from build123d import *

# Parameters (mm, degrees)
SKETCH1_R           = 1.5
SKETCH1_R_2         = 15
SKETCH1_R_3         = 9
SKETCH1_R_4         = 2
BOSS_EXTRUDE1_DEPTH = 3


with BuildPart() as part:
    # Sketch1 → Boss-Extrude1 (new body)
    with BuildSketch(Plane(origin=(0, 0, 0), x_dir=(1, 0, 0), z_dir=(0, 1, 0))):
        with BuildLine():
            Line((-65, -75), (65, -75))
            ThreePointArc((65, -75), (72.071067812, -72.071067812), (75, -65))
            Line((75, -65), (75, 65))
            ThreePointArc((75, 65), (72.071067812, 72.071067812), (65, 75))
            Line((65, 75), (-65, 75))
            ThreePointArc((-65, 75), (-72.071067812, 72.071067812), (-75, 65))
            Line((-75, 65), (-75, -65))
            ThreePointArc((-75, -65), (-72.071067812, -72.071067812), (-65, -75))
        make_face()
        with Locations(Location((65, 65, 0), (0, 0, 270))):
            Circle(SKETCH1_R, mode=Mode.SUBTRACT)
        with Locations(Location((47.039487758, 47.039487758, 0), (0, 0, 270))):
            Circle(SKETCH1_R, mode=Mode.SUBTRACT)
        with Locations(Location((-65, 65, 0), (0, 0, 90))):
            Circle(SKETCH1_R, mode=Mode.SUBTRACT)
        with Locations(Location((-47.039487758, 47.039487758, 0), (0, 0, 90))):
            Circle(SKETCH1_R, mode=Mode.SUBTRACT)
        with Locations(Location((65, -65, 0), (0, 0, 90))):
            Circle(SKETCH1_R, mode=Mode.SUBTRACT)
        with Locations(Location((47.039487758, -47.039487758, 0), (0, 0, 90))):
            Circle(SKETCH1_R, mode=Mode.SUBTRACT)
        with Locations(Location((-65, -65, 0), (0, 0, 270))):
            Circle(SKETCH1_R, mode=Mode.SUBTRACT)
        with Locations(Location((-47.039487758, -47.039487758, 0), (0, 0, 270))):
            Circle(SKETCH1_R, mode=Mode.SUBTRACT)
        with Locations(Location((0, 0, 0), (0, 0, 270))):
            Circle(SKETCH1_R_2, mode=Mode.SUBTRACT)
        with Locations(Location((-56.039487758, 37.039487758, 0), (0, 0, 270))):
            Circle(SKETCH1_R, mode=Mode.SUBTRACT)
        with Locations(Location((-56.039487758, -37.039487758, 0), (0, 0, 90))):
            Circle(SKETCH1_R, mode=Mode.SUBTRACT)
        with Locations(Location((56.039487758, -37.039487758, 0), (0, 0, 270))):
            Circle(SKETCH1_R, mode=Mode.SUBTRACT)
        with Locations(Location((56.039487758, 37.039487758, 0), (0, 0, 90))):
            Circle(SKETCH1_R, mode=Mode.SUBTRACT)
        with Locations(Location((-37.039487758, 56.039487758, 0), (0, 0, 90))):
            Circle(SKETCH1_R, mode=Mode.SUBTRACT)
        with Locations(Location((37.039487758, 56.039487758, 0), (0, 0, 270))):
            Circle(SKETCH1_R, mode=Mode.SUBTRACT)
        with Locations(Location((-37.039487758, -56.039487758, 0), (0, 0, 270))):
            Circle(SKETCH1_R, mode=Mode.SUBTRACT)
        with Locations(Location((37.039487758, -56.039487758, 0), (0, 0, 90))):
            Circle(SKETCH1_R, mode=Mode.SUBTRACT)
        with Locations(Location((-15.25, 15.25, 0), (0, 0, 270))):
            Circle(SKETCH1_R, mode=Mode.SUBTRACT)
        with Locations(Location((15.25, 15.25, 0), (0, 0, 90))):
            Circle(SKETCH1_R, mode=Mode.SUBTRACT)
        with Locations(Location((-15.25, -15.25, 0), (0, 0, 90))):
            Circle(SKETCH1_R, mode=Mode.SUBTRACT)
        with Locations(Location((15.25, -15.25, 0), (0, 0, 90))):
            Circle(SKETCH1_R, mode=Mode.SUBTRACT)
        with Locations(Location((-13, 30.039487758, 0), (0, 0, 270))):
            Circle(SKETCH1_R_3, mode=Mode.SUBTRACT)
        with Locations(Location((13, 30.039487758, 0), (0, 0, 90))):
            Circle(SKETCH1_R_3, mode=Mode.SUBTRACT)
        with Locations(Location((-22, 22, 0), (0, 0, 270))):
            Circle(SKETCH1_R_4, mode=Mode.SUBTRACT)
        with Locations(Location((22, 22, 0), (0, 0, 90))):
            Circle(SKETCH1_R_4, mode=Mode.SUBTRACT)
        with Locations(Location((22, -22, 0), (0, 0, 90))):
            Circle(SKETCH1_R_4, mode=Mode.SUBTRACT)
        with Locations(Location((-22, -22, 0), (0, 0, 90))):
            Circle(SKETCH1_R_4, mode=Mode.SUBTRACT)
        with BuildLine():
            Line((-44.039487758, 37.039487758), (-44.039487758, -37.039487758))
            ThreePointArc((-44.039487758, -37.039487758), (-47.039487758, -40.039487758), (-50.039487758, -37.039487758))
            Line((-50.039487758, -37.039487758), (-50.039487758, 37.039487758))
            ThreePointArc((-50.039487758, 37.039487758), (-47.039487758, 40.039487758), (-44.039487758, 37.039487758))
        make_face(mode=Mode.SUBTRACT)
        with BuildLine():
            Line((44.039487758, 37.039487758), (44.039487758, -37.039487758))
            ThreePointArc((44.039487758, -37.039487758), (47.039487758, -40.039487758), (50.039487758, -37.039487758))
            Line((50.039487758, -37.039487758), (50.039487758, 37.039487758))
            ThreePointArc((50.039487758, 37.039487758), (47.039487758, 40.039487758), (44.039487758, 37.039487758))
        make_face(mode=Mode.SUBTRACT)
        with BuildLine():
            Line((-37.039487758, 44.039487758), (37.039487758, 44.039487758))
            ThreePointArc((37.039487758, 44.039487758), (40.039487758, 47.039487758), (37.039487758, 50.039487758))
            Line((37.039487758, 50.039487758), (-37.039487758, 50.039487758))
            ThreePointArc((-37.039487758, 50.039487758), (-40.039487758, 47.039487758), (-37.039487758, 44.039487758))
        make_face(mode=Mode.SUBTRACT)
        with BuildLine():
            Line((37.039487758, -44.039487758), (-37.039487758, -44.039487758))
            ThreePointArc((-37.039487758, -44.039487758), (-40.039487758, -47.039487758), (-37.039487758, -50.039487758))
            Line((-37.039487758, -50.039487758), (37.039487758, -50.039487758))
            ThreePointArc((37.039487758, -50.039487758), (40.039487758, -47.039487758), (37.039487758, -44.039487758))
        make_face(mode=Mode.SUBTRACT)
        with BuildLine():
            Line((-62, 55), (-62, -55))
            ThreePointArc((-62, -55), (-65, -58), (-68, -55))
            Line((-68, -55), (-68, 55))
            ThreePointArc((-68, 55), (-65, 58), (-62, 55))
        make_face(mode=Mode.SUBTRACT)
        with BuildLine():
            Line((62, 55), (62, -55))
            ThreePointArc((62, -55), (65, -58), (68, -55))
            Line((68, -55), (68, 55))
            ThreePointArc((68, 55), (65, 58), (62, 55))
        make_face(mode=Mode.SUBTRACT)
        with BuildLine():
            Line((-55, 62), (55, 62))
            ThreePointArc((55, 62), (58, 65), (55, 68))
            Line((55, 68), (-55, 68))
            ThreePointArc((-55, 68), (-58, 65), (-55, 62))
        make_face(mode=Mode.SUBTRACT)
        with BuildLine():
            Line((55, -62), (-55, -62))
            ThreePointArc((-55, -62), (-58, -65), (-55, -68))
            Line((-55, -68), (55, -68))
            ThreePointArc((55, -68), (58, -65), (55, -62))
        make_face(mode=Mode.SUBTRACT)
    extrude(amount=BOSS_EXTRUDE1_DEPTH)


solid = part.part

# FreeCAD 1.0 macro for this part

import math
import FreeCAD as App
import Part
import Sketcher

V = App.Vector

doc = App.newDocument("Part")
params = doc.addObject("Spreadsheet::Sheet", "Params")
for row, (alias, value) in enumerate([
    ("sketch1_diameter", "3 mm"),
    ("sketch1_diameter2", "4 mm"),
    ("sketch1_diameter3", "18 mm"),
    ("sketch1_diameter4", "30 mm"),
    ("sketch1_radius", "10 mm"),
    ("pad1_length", "3 mm"),
], start=1):
    params.set(f"A{row}", alias)
    params.set(f"B{row}", "=" + value)
    params.setAlias(f"B{row}", alias)

body = doc.addObject("PartDesign::Body", "Body")

# Sketch on XZ plane
sketch1 = body.newObject("Sketcher::SketchObject", "Sketch")
sketch1.AttachmentSupport = (doc.getObject("XZ_Plane"), [""])
sketch1.MapMode = "FlatFace"
sketch1.addGeometry([
    Part.LineSegment(V(-65, 75, 0), V(65, 75, 0)),  # 0
    Part.ArcOfCircle(Part.Circle(V(65, 65, 0), V(0, 0, 1), 10), math.radians(0), math.radians(90)),  # 1
    Part.LineSegment(V(75, 65, 0), V(75, -65, 0)),  # 2
    Part.ArcOfCircle(Part.Circle(V(65, -65, 0), V(0, 0, 1), 10), math.radians(-90), math.radians(0)),  # 3
    Part.LineSegment(V(65, -75, 0), V(-65, -75, 0)),  # 4
    Part.ArcOfCircle(Part.Circle(V(-65, -65, 0), V(0, 0, 1), 10), math.radians(180), math.radians(270)),  # 5
    Part.LineSegment(V(-75, -65, 0), V(-75, 65, 0)),  # 6
    Part.ArcOfCircle(Part.Circle(V(-65, 65, 0), V(0, 0, 1), 10), math.radians(90), math.radians(180)),  # 7
    Part.Circle(V(-65, 65, 0), V(0, 0, 1), 1.5),  # 8
    Part.Circle(V(-37, 56, 0), V(0, 0, 1), 1.5),  # 9
    Part.Circle(V(-56, 37, 0), V(0, 0, 1), 1.5),  # 10
    Part.Circle(V(-47, 47, 0), V(0, 0, 1), 1.5),  # 11
    Part.Circle(V(-22, 22, 0), V(0, 0, 1), 2),  # 12
    Part.Circle(V(-15.2, 15.2, 0), V(0, 0, 1), 1.5),  # 13
    Part.LineSegment(V(-55, 62, 0), V(55, 62, 0)),  # 14
    Part.ArcOfCircle(Part.Circle(V(55, 65, 0), V(0, 0, 1), 3), math.radians(-90), math.radians(90)),  # 15
    Part.LineSegment(V(55, 68, 0), V(-55, 68, 0)),  # 16
    Part.ArcOfCircle(Part.Circle(V(-55, 65, 0), V(0, 0, 1), 3), math.radians(90), math.radians(270)),  # 17
    Part.LineSegment(V(-37, 44, 0), V(37, 44, 0)),  # 18
    Part.ArcOfCircle(Part.Circle(V(37, 47, 0), V(0, 0, 1), 3), math.radians(-90), math.radians(90)),  # 19
    Part.LineSegment(V(37, 50, 0), V(-37, 50, 0)),  # 20
    Part.ArcOfCircle(Part.Circle(V(-37, 47, 0), V(0, 0, 1), 3), math.radians(90), math.radians(270)),  # 21
    Part.Circle(V(37, 56, 0), V(0, 0, 1), 1.5),  # 22
    Part.Circle(V(65, 65, 0), V(0, 0, 1), 1.5),  # 23
    Part.Circle(V(47, 47, 0), V(0, 0, 1), 1.5),  # 24
    Part.Circle(V(56, 37, 0), V(0, 0, 1), 1.5),  # 25
    Part.Circle(V(22, 22, 0), V(0, 0, 1), 2),  # 26
    Part.Circle(V(15.2, 15.2, 0), V(0, 0, 1), 1.5),  # 27
    Part.ArcOfCircle(Part.Circle(V(-65, -55, 0), V(0, 0, 1), 3), math.radians(180), math.radians(360)),  # 28
    Part.LineSegment(V(-62, -55, 0), V(-62, 55, 0)),  # 29
    Part.ArcOfCircle(Part.Circle(V(-65, 55, 0), V(0, 0, 1), 3), math.radians(0), math.radians(180)),  # 30
    Part.LineSegment(V(-68, 55, 0), V(-68, -55, 0)),  # 31
    Part.ArcOfCircle(Part.Circle(V(-47, -37, 0), V(0, 0, 1), 3), math.radians(180), math.radians(360)),  # 32
    Part.LineSegment(V(-44, -37, 0), V(-44, 37, 0)),  # 33
    Part.ArcOfCircle(Part.Circle(V(-47, 37, 0), V(0, 0, 1), 3), math.radians(0), math.radians(180)),  # 34
    Part.LineSegment(V(-50, 37, 0), V(-50, -37, 0)),  # 35
    Part.Circle(V(-15.2, -15.2, 0), V(0, 0, 1), 1.5),  # 36
    Part.Circle(V(-22, -22, 0), V(0, 0, 1), 2),  # 37
    Part.Circle(V(-13, -30, 0), V(0, 0, 1), 9),  # 38
    Part.Circle(V(-56, -37, 0), V(0, 0, 1), 1.5),  # 39
    Part.Circle(V(-47, -47, 0), V(0, 0, 1), 1.5),  # 40
    Part.Circle(V(-65, -65, 0), V(0, 0, 1), 1.5),  # 41
    Part.Circle(V(-37, -56, 0), V(0, 0, 1), 1.5),  # 42
    Part.Circle(V(0, 0, 0), V(0, 0, 1), 15),  # 43
    Part.Circle(V(15.2, -15.2, 0), V(0, 0, 1), 1.5),  # 44
    Part.Circle(V(13, -30, 0), V(0, 0, 1), 9),  # 45
    Part.Circle(V(22, -22, 0), V(0, 0, 1), 2),  # 46
    Part.LineSegment(V(44, 37, 0), V(44, -37, 0)),  # 47
    Part.ArcOfCircle(Part.Circle(V(47, -37, 0), V(0, 0, 1), 3), math.radians(180), math.radians(360)),  # 48
    Part.LineSegment(V(50, -37, 0), V(50, 37, 0)),  # 49
    Part.ArcOfCircle(Part.Circle(V(47, 37, 0), V(0, 0, 1), 3), math.radians(0), math.radians(180)),  # 50
    Part.LineSegment(V(62, 55, 0), V(62, -55, 0)),  # 51
    Part.ArcOfCircle(Part.Circle(V(65, -55, 0), V(0, 0, 1), 3), math.radians(180), math.radians(360)),  # 52
    Part.LineSegment(V(68, -55, 0), V(68, 55, 0)),  # 53
    Part.ArcOfCircle(Part.Circle(V(65, 55, 0), V(0, 0, 1), 3), math.radians(0), math.radians(180)),  # 54
    Part.LineSegment(V(37, -44, 0), V(-37, -44, 0)),  # 55
    Part.ArcOfCircle(Part.Circle(V(-37, -47, 0), V(0, 0, 1), 3), math.radians(90), math.radians(270)),  # 56
    Part.LineSegment(V(-37, -50, 0), V(37, -50, 0)),  # 57
    Part.ArcOfCircle(Part.Circle(V(37, -47, 0), V(0, 0, 1), 3), math.radians(-90), math.radians(90)),  # 58
    Part.LineSegment(V(55, -62, 0), V(-55, -62, 0)),  # 59
    Part.ArcOfCircle(Part.Circle(V(-55, -65, 0), V(0, 0, 1), 3), math.radians(90), math.radians(270)),  # 60
    Part.LineSegment(V(-55, -68, 0), V(55, -68, 0)),  # 61
    Part.ArcOfCircle(Part.Circle(V(55, -65, 0), V(0, 0, 1), 3), math.radians(-90), math.radians(90)),  # 62
    Part.Circle(V(47, -47, 0), V(0, 0, 1), 1.5),  # 63
    Part.Circle(V(56, -37, 0), V(0, 0, 1), 1.5),  # 64
    Part.Circle(V(37, -56, 0), V(0, 0, 1), 1.5),  # 65
    Part.Circle(V(65, -65, 0), V(0, 0, 1), 1.5),  # 66
], False)
sketch1.addConstraint([
    Sketcher.Constraint("Tangent", 0, 2, 1, 2),
    Sketcher.Constraint("Tangent", 1, 1, 2, 1),
    Sketcher.Constraint("Tangent", 2, 2, 3, 2),
    Sketcher.Constraint("Tangent", 3, 1, 4, 1),
    Sketcher.Constraint("Tangent", 4, 2, 5, 2),
    Sketcher.Constraint("Tangent", 5, 1, 6, 1),
    Sketcher.Constraint("Tangent", 6, 2, 7, 2),
    Sketcher.Constraint("Tangent", 7, 1, 0, 1),
    Sketcher.Constraint("Tangent", 14, 2, 15, 1),
    Sketcher.Constraint("Tangent", 15, 2, 16, 1),
    Sketcher.Constraint("Tangent", 16, 2, 17, 1),
    Sketcher.Constraint("Tangent", 17, 2, 14, 1),
    Sketcher.Constraint("Tangent", 18, 2, 19, 1),
    Sketcher.Constraint("Tangent", 19, 2, 20, 1),
    Sketcher.Constraint("Tangent", 20, 2, 21, 1),
    Sketcher.Constraint("Tangent", 21, 2, 18, 1),
    Sketcher.Constraint("Tangent", 28, 2, 29, 1),
    Sketcher.Constraint("Tangent", 29, 2, 30, 1),
    Sketcher.Constraint("Tangent", 30, 2, 31, 1),
    Sketcher.Constraint("Tangent", 31, 2, 28, 1),
    Sketcher.Constraint("Tangent", 32, 2, 33, 1),
    Sketcher.Constraint("Tangent", 33, 2, 34, 1),
    Sketcher.Constraint("Tangent", 34, 2, 35, 1),
    Sketcher.Constraint("Tangent", 35, 2, 32, 1),
    Sketcher.Constraint("Tangent", 47, 2, 48, 1),
    Sketcher.Constraint("Tangent", 48, 2, 49, 1),
    Sketcher.Constraint("Tangent", 49, 2, 50, 1),
    Sketcher.Constraint("Tangent", 50, 2, 47, 1),
    Sketcher.Constraint("Tangent", 51, 2, 52, 1),
    Sketcher.Constraint("Tangent", 52, 2, 53, 1),
    Sketcher.Constraint("Tangent", 53, 2, 54, 1),
    Sketcher.Constraint("Tangent", 54, 2, 51, 1),
    Sketcher.Constraint("Tangent", 55, 2, 56, 1),
    Sketcher.Constraint("Tangent", 56, 2, 57, 1),
    Sketcher.Constraint("Tangent", 57, 2, 58, 1),
    Sketcher.Constraint("Tangent", 58, 2, 55, 1),
    Sketcher.Constraint("Tangent", 59, 2, 60, 1),
    Sketcher.Constraint("Tangent", 60, 2, 61, 1),
    Sketcher.Constraint("Tangent", 61, 2, 62, 1),
    Sketcher.Constraint("Tangent", 62, 2, 59, 1),
    Sketcher.Constraint("Horizontal", 0),
    Sketcher.Constraint("Vertical", 2),
    Sketcher.Constraint("Horizontal", 4),
    Sketcher.Constraint("Vertical", 6),
    Sketcher.Constraint("Horizontal", 14),
    Sketcher.Constraint("Horizontal", 16),
    Sketcher.Constraint("Horizontal", 18),
    Sketcher.Constraint("Horizontal", 20),
    Sketcher.Constraint("Vertical", 29),
    Sketcher.Constraint("Vertical", 31),
    Sketcher.Constraint("Vertical", 33),
    Sketcher.Constraint("Vertical", 35),
    Sketcher.Constraint("Vertical", 47),
    Sketcher.Constraint("Vertical", 49),
    Sketcher.Constraint("Vertical", 51),
    Sketcher.Constraint("Vertical", 53),
    Sketcher.Constraint("Horizontal", 55),
    Sketcher.Constraint("Horizontal", 57),
    Sketcher.Constraint("Horizontal", 59),
    Sketcher.Constraint("Horizontal", 61),
    Sketcher.Constraint("Coincident", 43, 3, -1, 1),
    Sketcher.Constraint("Coincident", 8, 3, 7, 3),
    Sketcher.Constraint("Coincident", 23, 3, 1, 3),
    Sketcher.Constraint("Coincident", 41, 3, 5, 3),
    Sketcher.Constraint("Coincident", 66, 3, 3, 3),
    Sketcher.Constraint("Equal", 1, 3),
    Sketcher.Constraint("Equal", 3, 5),
    Sketcher.Constraint("Equal", 5, 7),
    Sketcher.Constraint("Equal", 8, 9),
    Sketcher.Constraint("Equal", 9, 10),
    Sketcher.Constraint("Equal", 10, 11),
    Sketcher.Constraint("Equal", 11, 13),
    Sketcher.Constraint("Equal", 17, 19),
    Sketcher.Constraint("Equal", 13, 22),
    Sketcher.Constraint("Equal", 22, 23),
    Sketcher.Constraint("Equal", 23, 24),
    Sketcher.Constraint("Equal", 24, 25),
    Sketcher.Constraint("Equal", 12, 26),
    Sketcher.Constraint("Equal", 25, 27),
    Sketcher.Constraint("Equal", 21, 28),
    Sketcher.Constraint("Equal", 30, 32),
    Sketcher.Constraint("Equal", 27, 36),
    Sketcher.Constraint("Equal", 26, 37),
    Sketcher.Constraint("Equal", 36, 39),
    Sketcher.Constraint("Equal", 39, 40),
    Sketcher.Constraint("Equal", 40, 41),
    Sketcher.Constraint("Equal", 41, 42),
    Sketcher.Constraint("Equal", 42, 44),
    Sketcher.Constraint("Equal", 38, 45),
    Sketcher.Constraint("Equal", 37, 46),
    Sketcher.Constraint("Equal", 34, 48),
    Sketcher.Constraint("Equal", 50, 52),
    Sketcher.Constraint("Equal", 54, 56),
    Sketcher.Constraint("Equal", 58, 60),
    Sketcher.Constraint("Equal", 44, 63),
    Sketcher.Constraint("Equal", 63, 64),
    Sketcher.Constraint("Equal", 64, 65),
    Sketcher.Constraint("Equal", 65, 66),
    Sketcher.Constraint("Symmetric", 1, 3, 5, 3, -1, 1),
    Sketcher.Constraint("Symmetric", 27, 3, 36, 3, -1, 1),
    Sketcher.Constraint("Symmetric", 26, 3, 37, 3, -1, 1),
    Sketcher.Constraint("Symmetric", 25, 3, 39, 3, -1, 1),
    Sketcher.Constraint("Symmetric", 24, 3, 40, 3, -1, 1),
    Sketcher.Constraint("Symmetric", 22, 3, 42, 3, -1, 1),
    Sketcher.Constraint("Symmetric", 13, 3, 44, 3, -1, 1),
    Sketcher.Constraint("Symmetric", 12, 3, 46, 3, -1, 1),
    Sketcher.Constraint("Symmetric", 34, 3, 48, 3, -1, 1),
    Sketcher.Constraint("Symmetric", 30, 3, 52, 3, -1, 1),
    Sketcher.Constraint("Symmetric", 19, 3, 56, 3, -1, 1),
    Sketcher.Constraint("Symmetric", 15, 3, 60, 3, -1, 1),
    Sketcher.Constraint("Symmetric", 11, 3, 63, 3, -1, 1),
    Sketcher.Constraint("Symmetric", 10, 3, 64, 3, -1, 1),
    Sketcher.Constraint("Symmetric", 9, 3, 65, 3, -1, 1),
    Sketcher.Constraint("Symmetric", 9, 3, 22, 3, -2),
    Sketcher.Constraint("Symmetric", 11, 3, 24, 3, -2),
    Sketcher.Constraint("Symmetric", 10, 3, 25, 3, -2),
    Sketcher.Constraint("Symmetric", 12, 3, 26, 3, -2),
    Sketcher.Constraint("Symmetric", 13, 3, 27, 3, -2),
    Sketcher.Constraint("Symmetric", 38, 3, 45, 3, -2),
    Sketcher.Constraint("Horizontal", 8, 3, 15, 3),
    Sketcher.Constraint("Horizontal", 11, 3, 19, 3),
    Sketcher.Constraint("Horizontal", 25, 3, 34, 3),
    Sketcher.Constraint("Horizontal", 32, 3, 39, 3),
    Sketcher.Constraint("Horizontal", 34, 3, 50, 3),
    Sketcher.Constraint("Horizontal", 28, 3, 52, 3),
    Sketcher.Constraint("Horizontal", 30, 3, 54, 3),
    Sketcher.Constraint("Vertical", 9, 3, 21, 3),
    Sketcher.Constraint("Vertical", 19, 3, 22, 3),
    Sketcher.Constraint("Vertical", 8, 3, 28, 3),
    Sketcher.Constraint("Vertical", 11, 3, 32, 3),
    Sketcher.Constraint("Vertical", 22, 3, 58, 3),
    Sketcher.Constraint("Vertical", 17, 3, 60, 3),
    Sketcher.Constraint("Vertical", 15, 3, 62, 3),
    Sketcher.Constraint("Equal", 4, 2),
    Sketcher.Constraint("Equal", 61, 29),
    Sketcher.Constraint("Equal", 57, 33),
    Sketcher.Constraint("Diameter", 8, 3.0),
    Sketcher.Constraint("Diameter", 12, 4.0),
    Sketcher.Constraint("Diameter", 38, 18.0),
    Sketcher.Constraint("Diameter", 43, 30.0),
    Sketcher.Constraint("Radius", 1, 10.0),
    Sketcher.Constraint("Radius", 15, 3.0),
    Sketcher.Constraint("DistanceX", 0, 1, 0, 2, 130.0),
    Sketcher.Constraint("DistanceX", 14, 1, 14, 2, 110.0),
    Sketcher.Constraint("DistanceX", 12, 3, -1, 1, 22.0),
    Sketcher.Constraint("DistanceY", -1, 1, 12, 3, 22.0),
    Sketcher.Constraint("DistanceX", 38, 3, -1, 1, 13.0),
    Sketcher.Constraint("DistanceX", 13, 3, -1, 1, 15.25),
    Sketcher.Constraint("DistanceY", -1, 1, 13, 3, 15.25),
    Sketcher.Constraint("DistanceX", 18, 1, 18, 2, 74.078976),
    Sketcher.Constraint("DistanceY", -1, 1, 9, 3, 56.039488),
    Sketcher.Constraint("DistanceX", 10, 3, -1, 1, 56.039488),
    Sketcher.Constraint("DistanceX", 11, 3, -1, 1, 47.039488),
    Sketcher.Constraint("DistanceY", -1, 1, 11, 3, 47.039488),
    Sketcher.Constraint("DistanceY", 38, 3, -1, 1, 30.039488),
])
sketch1.setExpression("Constraints[136]", "Params.sketch1_diameter")
sketch1.setExpression("Constraints[137]", "Params.sketch1_diameter2")
sketch1.setExpression("Constraints[138]", "Params.sketch1_diameter3")
sketch1.setExpression("Constraints[139]", "Params.sketch1_diameter4")
sketch1.setExpression("Constraints[140]", "Params.sketch1_radius")
pad1 = body.newObject("PartDesign::Pad", "Pad")
pad1.Profile = sketch1
pad1.setExpression("Length", "Params.pad1_length")
pad1.Reversed = True

doc.recompute()
